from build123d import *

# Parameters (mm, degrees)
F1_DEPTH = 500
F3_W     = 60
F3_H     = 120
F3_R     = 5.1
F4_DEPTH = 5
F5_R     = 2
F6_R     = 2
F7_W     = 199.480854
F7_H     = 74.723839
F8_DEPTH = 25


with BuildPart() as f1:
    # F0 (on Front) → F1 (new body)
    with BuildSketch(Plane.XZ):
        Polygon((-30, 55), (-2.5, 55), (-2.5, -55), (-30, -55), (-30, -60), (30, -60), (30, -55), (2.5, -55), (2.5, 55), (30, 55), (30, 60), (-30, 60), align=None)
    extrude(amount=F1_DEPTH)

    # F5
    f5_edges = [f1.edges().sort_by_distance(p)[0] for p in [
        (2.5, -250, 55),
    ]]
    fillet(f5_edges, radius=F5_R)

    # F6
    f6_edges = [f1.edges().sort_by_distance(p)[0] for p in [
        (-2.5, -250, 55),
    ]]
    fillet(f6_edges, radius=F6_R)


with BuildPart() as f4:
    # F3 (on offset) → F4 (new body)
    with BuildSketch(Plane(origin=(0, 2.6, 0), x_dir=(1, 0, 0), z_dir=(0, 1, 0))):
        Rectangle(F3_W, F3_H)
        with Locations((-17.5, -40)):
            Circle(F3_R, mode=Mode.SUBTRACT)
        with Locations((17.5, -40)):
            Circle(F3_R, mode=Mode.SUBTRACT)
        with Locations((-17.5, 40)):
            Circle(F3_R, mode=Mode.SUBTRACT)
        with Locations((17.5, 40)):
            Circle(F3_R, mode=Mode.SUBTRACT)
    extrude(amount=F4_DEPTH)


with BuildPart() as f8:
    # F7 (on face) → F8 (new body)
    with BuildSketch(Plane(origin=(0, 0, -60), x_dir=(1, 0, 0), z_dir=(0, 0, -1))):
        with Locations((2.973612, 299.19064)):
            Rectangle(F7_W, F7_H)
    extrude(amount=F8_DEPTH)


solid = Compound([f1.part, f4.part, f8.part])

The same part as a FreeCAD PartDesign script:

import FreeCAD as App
import Part
import Sketcher
from FreeCAD import Vector


def edges_at(feature, points):
    """Names of the edges that pass closest to the given points."""
    edges = feature.Shape.Edges
    near = lambda p: min(range(len(edges)), key=lambda i: edges[i].distToShape(Part.Vertex(*p))[0])
    return sorted({f"Edge{near(p) + 1}" for p in points})

doc = App.newDocument("Part")
params = doc.addObject("Spreadsheet::Sheet", "Params")
for row, (alias, value) in enumerate([
    ("sketch1_width", "60 mm"),
    ("sketch1_height", "110 mm"),
    ("sketch1_height2", "5 mm"),
    ("sketch1_width2", "27.5 mm"),
    ("pad1_length", "500 mm"),
    ("fillet_radius", "2 mm"),
    ("fillet2_radius", "2 mm"),
    ("sketch2_diameter", "10.2 mm"),
    ("sketch2_width", "60 mm"),
    ("sketch2_height", "120 mm"),
    ("pad2_length", "5 mm"),
    ("pad3_length", "25 mm"),
], start=1):
    params.set(f"A{row}", alias)
    params.set(f"B{row}", "=" + value)
    params.setAlias(f"B{row}", alias)

body = doc.addObject("PartDesign::Body", "Body")

sketch1 = body.newObject("Sketcher::SketchObject", "Sketch")
sketch1.AttachmentSupport = (doc.getObject("XZ_Plane"), [""])
sketch1.MapMode = "FlatFace"
sketch1.addGeometry([
    Part.LineSegment(Vector(-30, 55, 0), Vector(-2, 55, 0)),
    Part.LineSegment(Vector(-2, 55, 0), Vector(-2, -55, 0)),
    Part.LineSegment(Vector(-2, -55, 0), Vector(-30, -55, 0)),
    Part.LineSegment(Vector(-30, -55, 0), Vector(-30, -60, 0)),
    Part.LineSegment(Vector(-30, -60, 0), Vector(30, -60, 0)),
    Part.LineSegment(Vector(30, -60, 0), Vector(30, -55, 0)),
    Part.LineSegment(Vector(30, -55, 0), Vector(2, -55, 0)),
    Part.LineSegment(Vector(2, -55, 0), Vector(2, 55, 0)),
    Part.LineSegment(Vector(2, 55, 0), Vector(30, 55, 0)),
    Part.LineSegment(Vector(30, 55, 0), Vector(30, 60, 0)),
    Part.LineSegment(Vector(30, 60, 0), Vector(-30, 60, 0)),
    Part.LineSegment(Vector(-30, 60, 0), Vector(-30, 55, 0)),
], False)
sketch1.addConstraint([
    Sketcher.Constraint("Coincident", 0, 2, 1, 1),
    Sketcher.Constraint("Coincident", 1, 2, 2, 1),
    Sketcher.Constraint("Coincident", 2, 2, 3, 1),
    Sketcher.Constraint("Coincident", 3, 2, 4, 1),
    Sketcher.Constraint("Coincident", 4, 2, 5, 1),
    Sketcher.Constraint("Coincident", 5, 2, 6, 1),
    Sketcher.Constraint("Coincident", 6, 2, 7, 1),
    Sketcher.Constraint("Coincident", 7, 2, 8, 1),
    Sketcher.Constraint("Coincident", 8, 2, 9, 1),
    Sketcher.Constraint("Coincident", 9, 2, 10, 1),
    Sketcher.Constraint("Coincident", 10, 2, 11, 1),
    Sketcher.Constraint("Coincident", 11, 2, 0, 1),
    Sketcher.Constraint("Horizontal", 0),
    Sketcher.Constraint("Vertical", 1),
    Sketcher.Constraint("Horizontal", 2),
    Sketcher.Constraint("Vertical", 3),
    Sketcher.Constraint("Horizontal", 4),
    Sketcher.Constraint("Vertical", 5),
    Sketcher.Constraint("Horizontal", 6),
    Sketcher.Constraint("Vertical", 7),
    Sketcher.Constraint("Horizontal", 8),
    Sketcher.Constraint("Vertical", 9),
    Sketcher.Constraint("Horizontal", 10),
    Sketcher.Constraint("Vertical", 11),
    Sketcher.Constraint("Symmetric", 0, 2, 6, 2, -1, 1),
    Sketcher.Constraint("Symmetric", 2, 2, 8, 2, -1, 1),
    Sketcher.Constraint("Symmetric", 4, 2, 10, 2, -1, 1),
    Sketcher.Constraint("Symmetric", 2, 2, 5, 2, -2),
    Sketcher.Constraint("DistanceX", 4, 1, 4, 2, 60.0),
    Sketcher.Constraint("DistanceY", 1, 2, 1, 1, 110.0),
    Sketcher.Constraint("DistanceY", 3, 2, 3, 1, 5.0),
    Sketcher.Constraint("DistanceX", 0, 1, 0, 2, 27.5),
])
sketch1.setExpression("Constraints[28]", "Params.sketch1_width")
sketch1.setExpression("Constraints[29]", "Params.sketch1_height")
sketch1.setExpression("Constraints[30]", "Params.sketch1_height2")
sketch1.setExpression("Constraints[31]", "Params.sketch1_width2")
pad1 = body.newObject("PartDesign::Pad", "Pad")
pad1.Profile = sketch1
pad1.setExpression("Length", "Params.pad1_length")
doc.recompute()

fillet = body.newObject("PartDesign::Fillet", "Fillet")
fillet.Base = (pad1, edges_at(pad1, [(2.5, -250, 55)]))
fillet.setExpression("Radius", "Params.fillet_radius")
doc.recompute()

fillet2 = body.newObject("PartDesign::Fillet", "Fillet001")
fillet2.Base = (fillet, edges_at(fillet, [(-2.5, -250, 55)]))
fillet2.setExpression("Radius", "Params.fillet2_radius")
body2 = doc.addObject("PartDesign::Body", "Body001")

sketch2 = body2.newObject("Sketcher::SketchObject", "Sketch001")
sketch2.AttachmentSupport = (doc.getObject("XZ_Plane001"), [""])
sketch2.MapMode = "FlatFace"
sketch2.AttachmentOffset = App.Placement(Vector(0, 0, -2.6), App.Rotation())
sketch2.addGeometry([
    Part.LineSegment(Vector(-30, -60, 0), Vector(-30, 60, 0)),
    Part.LineSegment(Vector(-30, 60, 0), Vector(30, 60, 0)),
    Part.LineSegment(Vector(30, 60, 0), Vector(30, -60, 0)),
    Part.LineSegment(Vector(30, -60, 0), Vector(-30, -60, 0)),
    Part.Circle(Vector(-18, 40, 0), Vector(0, 0, 1), 5),
    Part.Circle(Vector(18, 40, 0), Vector(0, 0, 1), 5),
    Part.Circle(Vector(-18, -40, 0), Vector(0, 0, 1), 5),
    Part.Circle(Vector(18, -40, 0), Vector(0, 0, 1), 5),
], False)
sketch2.addConstraint([
    Sketcher.Constraint("Coincident", 0, 2, 1, 1),
    Sketcher.Constraint("Coincident", 1, 2, 2, 1),
    Sketcher.Constraint("Coincident", 2, 2, 3, 1),
    Sketcher.Constraint("Coincident", 3, 2, 0, 1),
    Sketcher.Constraint("Vertical", 0),
    Sketcher.Constraint("Horizontal", 1),
    Sketcher.Constraint("Vertical", 2),
    Sketcher.Constraint("Horizontal", 3),
    Sketcher.Constraint("Equal", 4, 5),
    Sketcher.Constraint("Equal", 5, 6),
    Sketcher.Constraint("Equal", 6, 7),
    Sketcher.Constraint("Symmetric", 5, 3, 6, 3, -1, 1),
    Sketcher.Constraint("Symmetric", 4, 3, 7, 3, -1, 1),
    Sketcher.Constraint("Symmetric", 0, 2, 2, 2, -1, 1),
    Sketcher.Constraint("Symmetric", 4, 3, 5, 3, -2),
    Sketcher.Constraint("Diameter", 4, 10.2),
    Sketcher.Constraint("DistanceX", 1, 1, 1, 2, 60.0),
    Sketcher.Constraint("DistanceY", 0, 1, 0, 2, 120.0),
    Sketcher.Constraint("DistanceY", -1, 1, 4, 3, 40.0),
    Sketcher.Constraint("DistanceX", 4, 3, 5, 3, 35.0),
])
sketch2.setExpression("Constraints[15]", "Params.sketch2_diameter")
sketch2.setExpression("Constraints[16]", "Params.sketch2_width")
sketch2.setExpression("Constraints[17]", "Params.sketch2_height")
pad2 = body2.newObject("PartDesign::Pad", "Pad001")
pad2.Profile = sketch2
pad2.setExpression("Length", "Params.pad2_length")
pad2.Reversed = True
body3 = doc.addObject("PartDesign::Body", "Body002")

sketch3 = body3.newObject("Sketcher::SketchObject", "Sketch002")
sketch3.AttachmentSupport = (doc.getObject("XY_Plane002"), [""])
sketch3.MapMode = "FlatFace"
sketch3.AttachmentOffset = App.Placement(Vector(0, 0, -60), App.Rotation())
sketch3.addGeometry([
    Part.LineSegment(Vector(-97, -337, 0), Vector(-97, -262, 0)),
    Part.LineSegment(Vector(-97, -262, 0), Vector(103, -262, 0)),
    Part.LineSegment(Vector(103, -262, 0), Vector(103, -337, 0)),
    Part.LineSegment(Vector(103, -337, 0), Vector(-97, -337, 0)),
], False)
sketch3.addConstraint([
    Sketcher.Constraint("Coincident", 0, 2, 1, 1),
    Sketcher.Constraint("Coincident", 1, 2, 2, 1),
    Sketcher.Constraint("Coincident", 2, 2, 3, 1),
    Sketcher.Constraint("Coincident", 3, 2, 0, 1),
    Sketcher.Constraint("Vertical", 0),
    Sketcher.Constraint("Horizontal", 1),
    Sketcher.Constraint("Vertical", 2),
    Sketcher.Constraint("Horizontal", 3),
    Sketcher.Constraint("DistanceY", 0, 1, 0, 2, 74.723839),
    Sketcher.Constraint("DistanceX", 1, 1, 1, 2, 199.480854),
    Sketcher.Constraint("DistanceY", 0, 2, -1, 1, 261.82872),
    Sketcher.Constraint("DistanceX", -1, 1, 1, 2, 102.714039),
])
pad3 = body3.newObject("PartDesign::Pad", "Pad002")
pad3.Profile = sketch3
pad3.setExpression("Length", "Params.pad3_length")
pad3.Reversed = True

doc.recompute()
